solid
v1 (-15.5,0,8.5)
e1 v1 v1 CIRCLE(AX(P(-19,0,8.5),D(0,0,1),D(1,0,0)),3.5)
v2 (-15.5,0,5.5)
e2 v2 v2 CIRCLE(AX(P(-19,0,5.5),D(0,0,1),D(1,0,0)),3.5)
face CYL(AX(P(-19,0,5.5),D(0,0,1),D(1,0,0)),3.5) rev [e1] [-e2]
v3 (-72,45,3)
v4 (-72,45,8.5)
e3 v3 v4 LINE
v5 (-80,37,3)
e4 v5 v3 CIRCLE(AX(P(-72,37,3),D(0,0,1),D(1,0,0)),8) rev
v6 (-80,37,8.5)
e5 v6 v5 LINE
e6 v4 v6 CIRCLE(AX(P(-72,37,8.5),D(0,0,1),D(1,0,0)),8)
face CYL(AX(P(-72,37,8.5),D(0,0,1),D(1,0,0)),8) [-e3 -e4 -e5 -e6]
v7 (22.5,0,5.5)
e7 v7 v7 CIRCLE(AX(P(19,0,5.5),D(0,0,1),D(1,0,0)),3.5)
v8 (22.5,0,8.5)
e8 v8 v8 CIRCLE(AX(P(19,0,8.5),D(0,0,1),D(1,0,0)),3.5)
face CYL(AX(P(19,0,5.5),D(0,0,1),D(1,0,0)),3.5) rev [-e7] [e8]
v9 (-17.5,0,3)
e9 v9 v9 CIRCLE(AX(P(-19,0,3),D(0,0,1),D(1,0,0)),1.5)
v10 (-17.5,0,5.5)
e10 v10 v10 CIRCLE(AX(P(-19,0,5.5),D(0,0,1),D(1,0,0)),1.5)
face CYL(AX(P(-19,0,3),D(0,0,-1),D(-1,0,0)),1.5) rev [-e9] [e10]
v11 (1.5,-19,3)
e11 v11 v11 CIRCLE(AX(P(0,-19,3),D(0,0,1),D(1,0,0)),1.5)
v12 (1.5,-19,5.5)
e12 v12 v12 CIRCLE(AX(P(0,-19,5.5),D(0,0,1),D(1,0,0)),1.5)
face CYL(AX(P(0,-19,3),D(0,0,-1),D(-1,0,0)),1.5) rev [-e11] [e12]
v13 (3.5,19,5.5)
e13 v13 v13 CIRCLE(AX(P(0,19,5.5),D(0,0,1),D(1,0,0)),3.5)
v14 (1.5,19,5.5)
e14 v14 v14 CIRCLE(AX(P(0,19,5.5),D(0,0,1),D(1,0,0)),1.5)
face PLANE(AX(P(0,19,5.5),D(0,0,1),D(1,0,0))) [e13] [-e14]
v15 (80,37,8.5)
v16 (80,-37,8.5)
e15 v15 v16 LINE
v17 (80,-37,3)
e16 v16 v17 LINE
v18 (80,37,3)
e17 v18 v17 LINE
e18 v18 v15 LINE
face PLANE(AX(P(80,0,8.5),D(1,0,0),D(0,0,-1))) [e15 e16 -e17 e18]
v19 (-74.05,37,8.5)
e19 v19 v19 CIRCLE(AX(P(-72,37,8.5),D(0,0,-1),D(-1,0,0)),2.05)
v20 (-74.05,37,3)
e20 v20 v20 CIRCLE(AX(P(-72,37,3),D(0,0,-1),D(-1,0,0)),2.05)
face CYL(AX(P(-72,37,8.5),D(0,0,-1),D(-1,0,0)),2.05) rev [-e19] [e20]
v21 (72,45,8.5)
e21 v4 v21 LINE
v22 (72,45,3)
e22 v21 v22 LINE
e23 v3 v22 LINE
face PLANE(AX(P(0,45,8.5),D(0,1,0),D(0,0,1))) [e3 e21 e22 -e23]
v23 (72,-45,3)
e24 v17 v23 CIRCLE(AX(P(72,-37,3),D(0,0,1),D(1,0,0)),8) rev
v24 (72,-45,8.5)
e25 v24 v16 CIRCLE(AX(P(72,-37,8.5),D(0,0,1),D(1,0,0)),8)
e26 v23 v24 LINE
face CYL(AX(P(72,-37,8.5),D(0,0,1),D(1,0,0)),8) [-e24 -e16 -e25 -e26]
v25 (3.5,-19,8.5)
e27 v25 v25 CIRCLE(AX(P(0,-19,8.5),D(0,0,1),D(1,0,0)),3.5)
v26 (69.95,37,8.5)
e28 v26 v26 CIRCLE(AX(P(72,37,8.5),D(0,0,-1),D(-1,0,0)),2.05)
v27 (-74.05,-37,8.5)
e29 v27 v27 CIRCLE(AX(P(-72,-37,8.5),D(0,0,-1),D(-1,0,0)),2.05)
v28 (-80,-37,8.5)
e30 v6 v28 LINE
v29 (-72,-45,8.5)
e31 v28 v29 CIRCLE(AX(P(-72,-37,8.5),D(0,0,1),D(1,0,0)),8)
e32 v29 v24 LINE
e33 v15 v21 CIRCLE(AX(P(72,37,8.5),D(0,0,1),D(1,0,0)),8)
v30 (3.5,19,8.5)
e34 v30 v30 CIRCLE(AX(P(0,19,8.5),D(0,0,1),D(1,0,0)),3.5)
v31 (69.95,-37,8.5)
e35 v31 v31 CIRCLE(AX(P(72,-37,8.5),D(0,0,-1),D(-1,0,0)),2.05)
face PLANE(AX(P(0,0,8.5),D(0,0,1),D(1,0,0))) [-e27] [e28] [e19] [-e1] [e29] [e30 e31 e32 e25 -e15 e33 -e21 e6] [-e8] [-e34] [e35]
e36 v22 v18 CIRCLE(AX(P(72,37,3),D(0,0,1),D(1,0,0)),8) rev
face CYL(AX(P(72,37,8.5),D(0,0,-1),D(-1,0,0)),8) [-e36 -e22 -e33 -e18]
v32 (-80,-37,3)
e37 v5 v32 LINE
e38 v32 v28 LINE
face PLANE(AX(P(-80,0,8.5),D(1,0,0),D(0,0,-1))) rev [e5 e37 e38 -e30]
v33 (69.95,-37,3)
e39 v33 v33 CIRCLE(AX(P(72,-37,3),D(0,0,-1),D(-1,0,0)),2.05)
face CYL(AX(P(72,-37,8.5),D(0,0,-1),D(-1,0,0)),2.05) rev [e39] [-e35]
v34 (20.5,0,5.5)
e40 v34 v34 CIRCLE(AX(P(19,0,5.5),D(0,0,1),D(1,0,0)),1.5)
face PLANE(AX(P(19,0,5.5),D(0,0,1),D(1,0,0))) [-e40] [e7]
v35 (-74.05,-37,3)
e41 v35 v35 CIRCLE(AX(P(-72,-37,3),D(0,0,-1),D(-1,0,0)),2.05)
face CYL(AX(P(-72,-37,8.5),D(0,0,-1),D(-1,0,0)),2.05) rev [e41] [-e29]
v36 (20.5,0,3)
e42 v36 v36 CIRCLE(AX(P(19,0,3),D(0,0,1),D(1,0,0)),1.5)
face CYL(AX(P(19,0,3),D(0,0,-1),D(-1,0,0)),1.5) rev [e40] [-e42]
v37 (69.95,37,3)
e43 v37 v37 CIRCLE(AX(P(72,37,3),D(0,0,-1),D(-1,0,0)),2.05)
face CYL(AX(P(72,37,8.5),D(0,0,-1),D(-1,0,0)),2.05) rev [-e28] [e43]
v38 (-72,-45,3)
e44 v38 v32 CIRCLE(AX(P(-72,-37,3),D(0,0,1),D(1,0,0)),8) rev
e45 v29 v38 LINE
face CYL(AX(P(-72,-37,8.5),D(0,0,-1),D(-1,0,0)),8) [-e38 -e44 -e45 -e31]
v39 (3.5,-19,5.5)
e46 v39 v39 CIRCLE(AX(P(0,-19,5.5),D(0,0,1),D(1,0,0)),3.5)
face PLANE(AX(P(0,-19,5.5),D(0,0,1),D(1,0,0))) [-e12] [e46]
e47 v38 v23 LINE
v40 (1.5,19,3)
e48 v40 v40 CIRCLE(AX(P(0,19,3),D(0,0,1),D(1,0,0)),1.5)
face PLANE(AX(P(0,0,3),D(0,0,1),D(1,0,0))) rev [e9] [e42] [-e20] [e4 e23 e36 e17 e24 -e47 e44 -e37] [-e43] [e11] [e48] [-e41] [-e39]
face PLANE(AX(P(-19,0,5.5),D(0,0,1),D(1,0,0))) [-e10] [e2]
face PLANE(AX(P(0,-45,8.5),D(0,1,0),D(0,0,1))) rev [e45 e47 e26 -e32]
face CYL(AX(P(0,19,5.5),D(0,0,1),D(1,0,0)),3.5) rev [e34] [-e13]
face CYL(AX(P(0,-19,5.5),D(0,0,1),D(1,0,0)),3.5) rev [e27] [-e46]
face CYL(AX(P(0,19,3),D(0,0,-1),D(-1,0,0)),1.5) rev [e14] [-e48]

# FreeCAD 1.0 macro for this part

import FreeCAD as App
import Part
import Sketcher
from FreeCAD import Vector


def edges_at(feature, points):
    """Names of the edges that pass closest to the given points."""
    edges = feature.Shape.Edges
    near = lambda p: min(range(len(edges)), key=lambda i: edges[i].distToShape(Part.Vertex(*p))[0])
    return sorted({f"Edge{near(p) + 1}" for p in points})


def add_polygon(sketch, points):
    """Adds a closed chain of lines whose ends are joined by coincident constraints."""
    first, n = sketch.GeometryCount, len(points)
    for a, b in zip(points, points[1:] + points[:1]):
        sketch.addGeometry(Part.LineSegment(App.Vector(*a, 0), App.Vector(*b, 0)), False)
    for i in range(n):
        sketch.addConstraint(Sketcher.Constraint("Coincident", first + i, 2, first + (i + 1) % n, 1))

doc = App.newDocument("Part")
params = doc.addObject("Spreadsheet::Sheet", "Params")
for row, (alias, value) in enumerate([
    ("sketch1_diameter", "3 mm"),
    ("sketch1_diameter2", "57.4 mm"),
    ("pad1_length", "3 mm"),
    ("sketch2_diameter", "69.4 mm"),
    ("sketch2_diameter2", "57.4 mm"),
    ("pad2_length", "48 mm"),
    ("sketch3_width", "12 mm"),
    ("sketch3_height", "23 mm"),
    ("pocket1_length", "10 mm"),
    ("fillet_radius", "2 mm"),
    ("sketch4_width", "30 mm"),
    ("sketch4_height", "25 mm"),
    ("fillet2_radius", "2 mm"),
    ("sketch5_diameter", "3 mm"),
    ("sketch5_width", "160 mm"),
    ("sketch5_height", "90 mm"),
    ("pad3_length", "5.5 mm"),
    ("sketch6_diameter", "4.1 mm"),
    ("fillet3_radius", "8 mm"),
    ("sketch7_diameter", "7 mm"),
    ("sketch7_diameter2", "3 mm"),
    ("pocket4_length", "3 mm"),
    ("sketch8_diameter", "69.4 mm"),
    ("pocket5_length", "48 mm"),
], start=1):
    params.set(f"A{row}", alias)
    params.set(f"B{row}", "=" + value)
    params.setAlias(f"B{row}", alias)

body = doc.addObject("PartDesign::Body", "Body")

sketch1 = doc.addObject("Sketcher::SketchObject", "Sketch")
body.addObject(sketch1)
sketch1.AttachmentSupport = (doc.XY_Plane, [""])
sketch1.MapMode = "FlatFace"
sketch1.addGeometry(Part.Circle(Vector(0, 0, 0), Vector(0, 0, 1), 28.7), False)
sketch1.addGeometry(Part.Circle(Vector(0, -19, 0), Vector(0, 0, 1), 1.5), False)
sketch1.addGeometry(Part.Circle(Vector(-19, 0, 0), Vector(0, 0, 1), 1.5), False)
sketch1.addGeometry(Part.Circle(Vector(19, 0, 0), Vector(0, 0, 1), 1.5), False)
sketch1.addGeometry(Part.Circle(Vector(0, 19, 0), Vector(0, 0, 1), 1.5), False)
sketch1.addConstraint(Sketcher.Constraint("Coincident", 0, 3, -1, 1))
sketch1.addConstraint(Sketcher.Constraint("Equal", 1, 2))
sketch1.addConstraint(Sketcher.Constraint("Equal", 2, 3))
sketch1.addConstraint(Sketcher.Constraint("Equal", 3, 4))
sketch1.addConstraint(Sketcher.Constraint("Symmetric", 2, 3, 3, 3, -1, 1))
sketch1.addConstraint(Sketcher.Constraint("Symmetric", 1, 3, 4, 3, -1, 1))
sketch1.addConstraint(Sketcher.Constraint("PointOnObject", 1, 3, -2))
sketch1.addConstraint(Sketcher.Constraint("PointOnObject", 2, 3, -1))
sketch1.addConstraint(Sketcher.Constraint("Diameter", 1, 3.0))
sketch1.addConstraint(Sketcher.Constraint("Diameter", 0, 57.4))
sketch1.addConstraint(Sketcher.Constraint("DistanceY", 1, 3, -1, 1, 19.0))
sketch1.addConstraint(Sketcher.Constraint("DistanceX", 2, 3, -1, 1, 19.0))
sketch1.setExpression("Constraints[8]", "Params.sketch1_diameter")
sketch1.setExpression("Constraints[9]", "Params.sketch1_diameter2")
pad1 = doc.addObject("PartDesign::Pad", "Pad")
body.addObject(pad1)
pad1.Profile = sketch1
pad1.setExpression("Length", "Params.pad1_length")

sketch2 = doc.addObject("Sketcher::SketchObject", "Sketch001")
body.addObject(sketch2)
sketch2.AttachmentSupport = (doc.XY_Plane, [""])
sketch2.MapMode = "FlatFace"
sketch2.AttachmentOffset = App.Placement(Vector(0, 0, -45), App.Rotation())
sketch2.addGeometry(Part.Circle(Vector(0, 0, 0), Vector(0, 0, 1), 35), False)
sketch2.addGeometry(Part.Circle(Vector(0, 0, 0), Vector(0, 0, 1), 29), False)
sketch2.addConstraint(Sketcher.Constraint("Coincident", 0, 3, -1, 1))
sketch2.addConstraint(Sketcher.Constraint("Coincident", 1, 3, -1, 1))
sketch2.addConstraint(Sketcher.Constraint("Diameter", 0, 69.4))
sketch2.addConstraint(Sketcher.Constraint("Diameter", 1, 57.4))
sketch2.setExpression("Constraints[2]", "Params.sketch2_diameter")
sketch2.setExpression("Constraints[3]", "Params.sketch2_diameter2")
pad2 = doc.addObject("PartDesign::Pad", "Pad001")
body.addObject(pad2)
pad2.Profile = sketch2
pad2.setExpression("Length", "Params.pad2_length")

sketch3 = doc.addObject("Sketcher::SketchObject", "Sketch002")
body.addObject(sketch3)
sketch3.Placement = App.Placement(Vector(-24.536605, 24.536605, 0), App.Rotation(Vector(0, 0, 1), Vector(0.707106781, 0.707106781, 0), Vector(-0.707106781, 0.707106781, 0), "ZXY"))
add_polygon(sketch3, [(-12, 11), (-12, -11), (0, -11), (0, 11)])
sketch3.addConstraint(Sketcher.Constraint("Vertical", 0))
sketch3.addConstraint(Sketcher.Constraint("Horizontal", 1))
sketch3.addConstraint(Sketcher.Constraint("Vertical", 2))
sketch3.addConstraint(Sketcher.Constraint("Horizontal", 3))
sketch3.addConstraint(Sketcher.Constraint("Symmetric", 1, 2, 2, 2, -1, 1))
sketch3.addConstraint(Sketcher.Constraint("DistanceX", 1, 1, 1, 2, 12.0))
sketch3.addConstraint(Sketcher.Constraint("DistanceY", 0, 2, 0, 1, 23.0))
sketch3.setExpression("Constraints[9]", "Params.sketch3_width")
sketch3.setExpression("Constraints[10]", "Params.sketch3_height")
pocket1 = doc.addObject("PartDesign::Pocket", "Pocket")
body.addObject(pocket1)
pocket1.Profile = sketch3
pocket1.setExpression("Length", "Params.pocket1_length")
doc.recompute()

fillet = doc.addObject("PartDesign::Fillet", "Fillet")
body.addObject(fillet)
fillet.Base = (pocket1, edges_at(pocket1, [
    (-12.74, 29.003, -12),
    (-12.74, 29.003, 0),
    (-29.003, 12.74, 0),
    (-29.003, 12.74, -12),
]))
fillet.setExpression("Radius", "Params.fillet_radius")

sketch4 = doc.addObject("Sketcher::SketchObject", "Sketch003")
body.addObject(sketch4)
sketch4.Placement = App.Placement(Vector(24.536605, 24.536605, 0), App.Rotation(Vector(0.707106781, -0.707106781, 0), Vector(0, 0, -0.999999999), Vector(0.707106781, 0.707106781, 0), "ZXY"))
add_polygon(sketch4, [(-14, 35), (-14, 10), (16, 10), (16, 35)])
sketch4.addConstraint(Sketcher.Constraint("Vertical", 0))
sketch4.addConstraint(Sketcher.Constraint("Horizontal", 1))
sketch4.addConstraint(Sketcher.Constraint("Vertical", 2))
sketch4.addConstraint(Sketcher.Constraint("Horizontal", 3))
sketch4.addConstraint(Sketcher.Constraint("DistanceX", 1, 1, 1, 2, 30.0))
sketch4.addConstraint(Sketcher.Constraint("DistanceY", 0, 2, 0, 1, 25.0))
sketch4.addConstraint(Sketcher.Constraint("DistanceY", -1, 1, 0, 2, 10.0))
sketch4.addConstraint(Sketcher.Constraint("DistanceX", 0, 2, -1, 1, 14.191049))
sketch4.setExpression("Constraints[8]", "Params.sketch4_width")
sketch4.setExpression("Constraints[9]", "Params.sketch4_height")
pocket2 = doc.addObject("PartDesign::Pocket", "Pocket001")
body.addObject(pocket2)
pocket2.Profile = sketch4
pocket2.Type = "ThroughAll"
doc.recompute()

fillet2 = doc.addObject("PartDesign::Fillet", "Fillet001")
body.addObject(fillet2)
fillet2.Base = (pocket2, edges_at(pocket2, [
    (-8.211, -30.569, -35),
    (30.569, 8.211, -35),
    (-8.211, -30.569, -10),
    (30.569, 8.211, -10),
    (-30.05, -9.981, -10),
    (9.981, 30.05, -10),
    (-30.05, -9.981, -35),
    (9.981, 30.05, -35),
]))
fillet2.setExpression("Radius", "Params.fillet2_radius")

sketch5 = doc.addObject("Sketcher::SketchObject", "Sketch004")
body.addObject(sketch5)
sketch5.AttachmentSupport = (doc.XY_Plane, [""])
sketch5.MapMode = "FlatFace"
sketch5.AttachmentOffset = App.Placement(Vector(0, 0, 3), App.Rotation())
add_polygon(sketch5, [(-80, 45), (-80, -45), (80, -45), (80, 45)])
sketch5.addGeometry(Part.Circle(Vector(0, 19, 0), Vector(0, 0, 1), 1.5), False)
sketch5.addGeometry(Part.Circle(Vector(0, -19, 0), Vector(0, 0, 1), 1.5), False)
sketch5.addGeometry(Part.Circle(Vector(-19, 0, 0), Vector(0, 0, 1), 1.5), False)
sketch5.addGeometry(Part.Circle(Vector(19, 0, 0), Vector(0, 0, 1), 1.5), False)
sketch5.addConstraint(Sketcher.Constraint("Vertical", 0))
sketch5.addConstraint(Sketcher.Constraint("Horizontal", 1))
sketch5.addConstraint(Sketcher.Constraint("Vertical", 2))
sketch5.addConstraint(Sketcher.Constraint("Horizontal", 3))
sketch5.addConstraint(Sketcher.Constraint("Equal", 4, 5))
sketch5.addConstraint(Sketcher.Constraint("Equal", 5, 6))
sketch5.addConstraint(Sketcher.Constraint("Equal", 6, 7))
sketch5.addConstraint(Sketcher.Constraint("Symmetric", 4, 3, 5, 3, -1, 1))
sketch5.addConstraint(Sketcher.Constraint("Symmetric", 6, 3, 7, 3, -1, 1))
sketch5.addConstraint(Sketcher.Constraint("Symmetric", 0, 2, 2, 2, -1, 1))
sketch5.addConstraint(Sketcher.Constraint("PointOnObject", 4, 3, -2))
sketch5.addConstraint(Sketcher.Constraint("PointOnObject", 6, 3, -1))
sketch5.addConstraint(Sketcher.Constraint("Diameter", 4, 3.0))
sketch5.addConstraint(Sketcher.Constraint("DistanceX", 1, 1, 1, 2, 160.0))
sketch5.addConstraint(Sketcher.Constraint("DistanceY", 0, 2, 0, 1, 90.0))
sketch5.addConstraint(Sketcher.Constraint("DistanceY", -1, 1, 4, 3, 19.0))
sketch5.addConstraint(Sketcher.Constraint("DistanceX", 6, 3, -1, 1, 19.0))
sketch5.setExpression("Constraints[16]", "Params.sketch5_diameter")
sketch5.setExpression("Constraints[17]", "Params.sketch5_width")
sketch5.setExpression("Constraints[18]", "Params.sketch5_height")
pad3 = doc.addObject("PartDesign::Pad", "Pad002")
body.addObject(pad3)
pad3.Profile = sketch5
pad3.setExpression("Length", "Params.pad3_length")

sketch6 = doc.addObject("Sketcher::SketchObject", "Sketch005")
body.addObject(sketch6)
sketch6.AttachmentSupport = (doc.XY_Plane, [""])
sketch6.MapMode = "FlatFace"
sketch6.AttachmentOffset = App.Placement(Vector(0, 0, 3), App.Rotation())
sketch6.addGeometry(Part.Circle(Vector(72, 37, 0), Vector(0, 0, 1), 2), False)
sketch6.addGeometry(Part.Circle(Vector(-72, 37, 0), Vector(0, 0, 1), 2), False)
sketch6.addGeometry(Part.Circle(Vector(-72, -37, 0), Vector(0, 0, 1), 2), False)
sketch6.addGeometry(Part.Circle(Vector(72, -37, 0), Vector(0, 0, 1), 2), False)
sketch6.addConstraint(Sketcher.Constraint("Equal", 0, 1))
sketch6.addConstraint(Sketcher.Constraint("Equal", 1, 2))
sketch6.addConstraint(Sketcher.Constraint("Equal", 2, 3))
sketch6.addConstraint(Sketcher.Constraint("Symmetric", 0, 3, 2, 3, -1, 1))
sketch6.addConstraint(Sketcher.Constraint("Symmetric", 1, 3, 3, 3, -1, 1))
sketch6.addConstraint(Sketcher.Constraint("Symmetric", 0, 3, 1, 3, -2))
sketch6.addConstraint(Sketcher.Constraint("Diameter", 0, 4.1))
sketch6.addConstraint(Sketcher.Constraint("DistanceX", -1, 1, 0, 3, 72.0))
sketch6.addConstraint(Sketcher.Constraint("DistanceY", -1, 1, 0, 3, 37.0))
sketch6.setExpression("Constraints[6]", "Params.sketch6_diameter")
pocket3 = doc.addObject("PartDesign::Pocket", "Pocket002")
body.addObject(pocket3)
pocket3.Profile = sketch6
pocket3.Type = "ThroughAll"
pocket3.Reversed = True
doc.recompute()

fillet3 = doc.addObject("PartDesign::Fillet", "Fillet002")
body.addObject(fillet3)
fillet3.Base = (pocket3, edges_at(pocket3, [
    (80, -45, 5.75),
    (80, 45, 5.75),
    (-80, 45, 5.75),
    (-80, -45, 5.75),
]))
fillet3.setExpression("Radius", "Params.fillet3_radius")

sketch7 = doc.addObject("Sketcher::SketchObject", "Sketch006")
body.addObject(sketch7)
sketch7.AttachmentSupport = (doc.XY_Plane, [""])
sketch7.MapMode = "FlatFace"
sketch7.AttachmentOffset = App.Placement(Vector(0, 0, 5.5), App.Rotation())
sketch7.addGeometry(Part.Circle(Vector(-19, 0, 0), Vector(0, 0, 1), 3.5), False)
sketch7.addGeometry(Part.Circle(Vector(-19, 0, 0), Vector(0, 0, 1), 1.5), False)
sketch7.addGeometry(Part.Circle(Vector(0, 19, 0), Vector(0, 0, 1), 3.5), False)
sketch7.addGeometry(Part.Circle(Vector(19, 0, 0), Vector(0, 0, 1), 3.5), False)
sketch7.addGeometry(Part.Circle(Vector(0, -19, 0), Vector(0, 0, 1), 3.5), False)
sketch7.addConstraint(Sketcher.Constraint("Coincident", 1, 3, 0, 3))
sketch7.addConstraint(Sketcher.Constraint("Equal", 0, 2))
sketch7.addConstraint(Sketcher.Constraint("Equal", 2, 3))
sketch7.addConstraint(Sketcher.Constraint("Equal", 3, 4))
sketch7.addConstraint(Sketcher.Constraint("Symmetric", 0, 3, 3, 3, -1, 1))
sketch7.addConstraint(Sketcher.Constraint("Symmetric", 2, 3, 4, 3, -1, 1))
sketch7.addConstraint(Sketcher.Constraint("PointOnObject", 0, 3, -1))
sketch7.addConstraint(Sketcher.Constraint("PointOnObject", 2, 3, -2))
sketch7.addConstraint(Sketcher.Constraint("Diameter", 0, 7.0))
sketch7.addConstraint(Sketcher.Constraint("Diameter", 1, 3.0))
sketch7.addConstraint(Sketcher.Constraint("DistanceX", 0, 3, -1, 1, 19.0))
sketch7.addConstraint(Sketcher.Constraint("DistanceY", -1, 1, 2, 3, 19.0))
sketch7.setExpression("Constraints[8]", "Params.sketch7_diameter")
sketch7.setExpression("Constraints[9]", "Params.sketch7_diameter2")
pocket4 = doc.addObject("PartDesign::Pocket", "Pocket003")
body.addObject(pocket4)
pocket4.Profile = sketch7
pocket4.setExpression("Length", "Params.pocket4_length")
pocket4.Reversed = True

sketch8 = doc.addObject("Sketcher::SketchObject", "Sketch007")
body.addObject(sketch8)
sketch8.AttachmentSupport = (doc.XY_Plane, [""])
sketch8.MapMode = "FlatFace"
sketch8.AttachmentOffset = App.Placement(Vector(0, 0, -45), App.Rotation())
sketch8.addGeometry(Part.Circle(Vector(0, 0, 0), Vector(0, 0, 1), 35), False)
sketch8.addConstraint(Sketcher.Constraint("Coincident", 0, 3, -1, 1))
sketch8.addConstraint(Sketcher.Constraint("Diameter", 0, 69.4))
sketch8.setExpression("Constraints[1]", "Params.sketch8_diameter")
pocket5 = doc.addObject("PartDesign::Pocket", "Pocket004")
body.addObject(pocket5)
pocket5.Profile = sketch8
pocket5.setExpression("Length", "Params.pocket5_length")
pocket5.Reversed = True

doc.recompute()
